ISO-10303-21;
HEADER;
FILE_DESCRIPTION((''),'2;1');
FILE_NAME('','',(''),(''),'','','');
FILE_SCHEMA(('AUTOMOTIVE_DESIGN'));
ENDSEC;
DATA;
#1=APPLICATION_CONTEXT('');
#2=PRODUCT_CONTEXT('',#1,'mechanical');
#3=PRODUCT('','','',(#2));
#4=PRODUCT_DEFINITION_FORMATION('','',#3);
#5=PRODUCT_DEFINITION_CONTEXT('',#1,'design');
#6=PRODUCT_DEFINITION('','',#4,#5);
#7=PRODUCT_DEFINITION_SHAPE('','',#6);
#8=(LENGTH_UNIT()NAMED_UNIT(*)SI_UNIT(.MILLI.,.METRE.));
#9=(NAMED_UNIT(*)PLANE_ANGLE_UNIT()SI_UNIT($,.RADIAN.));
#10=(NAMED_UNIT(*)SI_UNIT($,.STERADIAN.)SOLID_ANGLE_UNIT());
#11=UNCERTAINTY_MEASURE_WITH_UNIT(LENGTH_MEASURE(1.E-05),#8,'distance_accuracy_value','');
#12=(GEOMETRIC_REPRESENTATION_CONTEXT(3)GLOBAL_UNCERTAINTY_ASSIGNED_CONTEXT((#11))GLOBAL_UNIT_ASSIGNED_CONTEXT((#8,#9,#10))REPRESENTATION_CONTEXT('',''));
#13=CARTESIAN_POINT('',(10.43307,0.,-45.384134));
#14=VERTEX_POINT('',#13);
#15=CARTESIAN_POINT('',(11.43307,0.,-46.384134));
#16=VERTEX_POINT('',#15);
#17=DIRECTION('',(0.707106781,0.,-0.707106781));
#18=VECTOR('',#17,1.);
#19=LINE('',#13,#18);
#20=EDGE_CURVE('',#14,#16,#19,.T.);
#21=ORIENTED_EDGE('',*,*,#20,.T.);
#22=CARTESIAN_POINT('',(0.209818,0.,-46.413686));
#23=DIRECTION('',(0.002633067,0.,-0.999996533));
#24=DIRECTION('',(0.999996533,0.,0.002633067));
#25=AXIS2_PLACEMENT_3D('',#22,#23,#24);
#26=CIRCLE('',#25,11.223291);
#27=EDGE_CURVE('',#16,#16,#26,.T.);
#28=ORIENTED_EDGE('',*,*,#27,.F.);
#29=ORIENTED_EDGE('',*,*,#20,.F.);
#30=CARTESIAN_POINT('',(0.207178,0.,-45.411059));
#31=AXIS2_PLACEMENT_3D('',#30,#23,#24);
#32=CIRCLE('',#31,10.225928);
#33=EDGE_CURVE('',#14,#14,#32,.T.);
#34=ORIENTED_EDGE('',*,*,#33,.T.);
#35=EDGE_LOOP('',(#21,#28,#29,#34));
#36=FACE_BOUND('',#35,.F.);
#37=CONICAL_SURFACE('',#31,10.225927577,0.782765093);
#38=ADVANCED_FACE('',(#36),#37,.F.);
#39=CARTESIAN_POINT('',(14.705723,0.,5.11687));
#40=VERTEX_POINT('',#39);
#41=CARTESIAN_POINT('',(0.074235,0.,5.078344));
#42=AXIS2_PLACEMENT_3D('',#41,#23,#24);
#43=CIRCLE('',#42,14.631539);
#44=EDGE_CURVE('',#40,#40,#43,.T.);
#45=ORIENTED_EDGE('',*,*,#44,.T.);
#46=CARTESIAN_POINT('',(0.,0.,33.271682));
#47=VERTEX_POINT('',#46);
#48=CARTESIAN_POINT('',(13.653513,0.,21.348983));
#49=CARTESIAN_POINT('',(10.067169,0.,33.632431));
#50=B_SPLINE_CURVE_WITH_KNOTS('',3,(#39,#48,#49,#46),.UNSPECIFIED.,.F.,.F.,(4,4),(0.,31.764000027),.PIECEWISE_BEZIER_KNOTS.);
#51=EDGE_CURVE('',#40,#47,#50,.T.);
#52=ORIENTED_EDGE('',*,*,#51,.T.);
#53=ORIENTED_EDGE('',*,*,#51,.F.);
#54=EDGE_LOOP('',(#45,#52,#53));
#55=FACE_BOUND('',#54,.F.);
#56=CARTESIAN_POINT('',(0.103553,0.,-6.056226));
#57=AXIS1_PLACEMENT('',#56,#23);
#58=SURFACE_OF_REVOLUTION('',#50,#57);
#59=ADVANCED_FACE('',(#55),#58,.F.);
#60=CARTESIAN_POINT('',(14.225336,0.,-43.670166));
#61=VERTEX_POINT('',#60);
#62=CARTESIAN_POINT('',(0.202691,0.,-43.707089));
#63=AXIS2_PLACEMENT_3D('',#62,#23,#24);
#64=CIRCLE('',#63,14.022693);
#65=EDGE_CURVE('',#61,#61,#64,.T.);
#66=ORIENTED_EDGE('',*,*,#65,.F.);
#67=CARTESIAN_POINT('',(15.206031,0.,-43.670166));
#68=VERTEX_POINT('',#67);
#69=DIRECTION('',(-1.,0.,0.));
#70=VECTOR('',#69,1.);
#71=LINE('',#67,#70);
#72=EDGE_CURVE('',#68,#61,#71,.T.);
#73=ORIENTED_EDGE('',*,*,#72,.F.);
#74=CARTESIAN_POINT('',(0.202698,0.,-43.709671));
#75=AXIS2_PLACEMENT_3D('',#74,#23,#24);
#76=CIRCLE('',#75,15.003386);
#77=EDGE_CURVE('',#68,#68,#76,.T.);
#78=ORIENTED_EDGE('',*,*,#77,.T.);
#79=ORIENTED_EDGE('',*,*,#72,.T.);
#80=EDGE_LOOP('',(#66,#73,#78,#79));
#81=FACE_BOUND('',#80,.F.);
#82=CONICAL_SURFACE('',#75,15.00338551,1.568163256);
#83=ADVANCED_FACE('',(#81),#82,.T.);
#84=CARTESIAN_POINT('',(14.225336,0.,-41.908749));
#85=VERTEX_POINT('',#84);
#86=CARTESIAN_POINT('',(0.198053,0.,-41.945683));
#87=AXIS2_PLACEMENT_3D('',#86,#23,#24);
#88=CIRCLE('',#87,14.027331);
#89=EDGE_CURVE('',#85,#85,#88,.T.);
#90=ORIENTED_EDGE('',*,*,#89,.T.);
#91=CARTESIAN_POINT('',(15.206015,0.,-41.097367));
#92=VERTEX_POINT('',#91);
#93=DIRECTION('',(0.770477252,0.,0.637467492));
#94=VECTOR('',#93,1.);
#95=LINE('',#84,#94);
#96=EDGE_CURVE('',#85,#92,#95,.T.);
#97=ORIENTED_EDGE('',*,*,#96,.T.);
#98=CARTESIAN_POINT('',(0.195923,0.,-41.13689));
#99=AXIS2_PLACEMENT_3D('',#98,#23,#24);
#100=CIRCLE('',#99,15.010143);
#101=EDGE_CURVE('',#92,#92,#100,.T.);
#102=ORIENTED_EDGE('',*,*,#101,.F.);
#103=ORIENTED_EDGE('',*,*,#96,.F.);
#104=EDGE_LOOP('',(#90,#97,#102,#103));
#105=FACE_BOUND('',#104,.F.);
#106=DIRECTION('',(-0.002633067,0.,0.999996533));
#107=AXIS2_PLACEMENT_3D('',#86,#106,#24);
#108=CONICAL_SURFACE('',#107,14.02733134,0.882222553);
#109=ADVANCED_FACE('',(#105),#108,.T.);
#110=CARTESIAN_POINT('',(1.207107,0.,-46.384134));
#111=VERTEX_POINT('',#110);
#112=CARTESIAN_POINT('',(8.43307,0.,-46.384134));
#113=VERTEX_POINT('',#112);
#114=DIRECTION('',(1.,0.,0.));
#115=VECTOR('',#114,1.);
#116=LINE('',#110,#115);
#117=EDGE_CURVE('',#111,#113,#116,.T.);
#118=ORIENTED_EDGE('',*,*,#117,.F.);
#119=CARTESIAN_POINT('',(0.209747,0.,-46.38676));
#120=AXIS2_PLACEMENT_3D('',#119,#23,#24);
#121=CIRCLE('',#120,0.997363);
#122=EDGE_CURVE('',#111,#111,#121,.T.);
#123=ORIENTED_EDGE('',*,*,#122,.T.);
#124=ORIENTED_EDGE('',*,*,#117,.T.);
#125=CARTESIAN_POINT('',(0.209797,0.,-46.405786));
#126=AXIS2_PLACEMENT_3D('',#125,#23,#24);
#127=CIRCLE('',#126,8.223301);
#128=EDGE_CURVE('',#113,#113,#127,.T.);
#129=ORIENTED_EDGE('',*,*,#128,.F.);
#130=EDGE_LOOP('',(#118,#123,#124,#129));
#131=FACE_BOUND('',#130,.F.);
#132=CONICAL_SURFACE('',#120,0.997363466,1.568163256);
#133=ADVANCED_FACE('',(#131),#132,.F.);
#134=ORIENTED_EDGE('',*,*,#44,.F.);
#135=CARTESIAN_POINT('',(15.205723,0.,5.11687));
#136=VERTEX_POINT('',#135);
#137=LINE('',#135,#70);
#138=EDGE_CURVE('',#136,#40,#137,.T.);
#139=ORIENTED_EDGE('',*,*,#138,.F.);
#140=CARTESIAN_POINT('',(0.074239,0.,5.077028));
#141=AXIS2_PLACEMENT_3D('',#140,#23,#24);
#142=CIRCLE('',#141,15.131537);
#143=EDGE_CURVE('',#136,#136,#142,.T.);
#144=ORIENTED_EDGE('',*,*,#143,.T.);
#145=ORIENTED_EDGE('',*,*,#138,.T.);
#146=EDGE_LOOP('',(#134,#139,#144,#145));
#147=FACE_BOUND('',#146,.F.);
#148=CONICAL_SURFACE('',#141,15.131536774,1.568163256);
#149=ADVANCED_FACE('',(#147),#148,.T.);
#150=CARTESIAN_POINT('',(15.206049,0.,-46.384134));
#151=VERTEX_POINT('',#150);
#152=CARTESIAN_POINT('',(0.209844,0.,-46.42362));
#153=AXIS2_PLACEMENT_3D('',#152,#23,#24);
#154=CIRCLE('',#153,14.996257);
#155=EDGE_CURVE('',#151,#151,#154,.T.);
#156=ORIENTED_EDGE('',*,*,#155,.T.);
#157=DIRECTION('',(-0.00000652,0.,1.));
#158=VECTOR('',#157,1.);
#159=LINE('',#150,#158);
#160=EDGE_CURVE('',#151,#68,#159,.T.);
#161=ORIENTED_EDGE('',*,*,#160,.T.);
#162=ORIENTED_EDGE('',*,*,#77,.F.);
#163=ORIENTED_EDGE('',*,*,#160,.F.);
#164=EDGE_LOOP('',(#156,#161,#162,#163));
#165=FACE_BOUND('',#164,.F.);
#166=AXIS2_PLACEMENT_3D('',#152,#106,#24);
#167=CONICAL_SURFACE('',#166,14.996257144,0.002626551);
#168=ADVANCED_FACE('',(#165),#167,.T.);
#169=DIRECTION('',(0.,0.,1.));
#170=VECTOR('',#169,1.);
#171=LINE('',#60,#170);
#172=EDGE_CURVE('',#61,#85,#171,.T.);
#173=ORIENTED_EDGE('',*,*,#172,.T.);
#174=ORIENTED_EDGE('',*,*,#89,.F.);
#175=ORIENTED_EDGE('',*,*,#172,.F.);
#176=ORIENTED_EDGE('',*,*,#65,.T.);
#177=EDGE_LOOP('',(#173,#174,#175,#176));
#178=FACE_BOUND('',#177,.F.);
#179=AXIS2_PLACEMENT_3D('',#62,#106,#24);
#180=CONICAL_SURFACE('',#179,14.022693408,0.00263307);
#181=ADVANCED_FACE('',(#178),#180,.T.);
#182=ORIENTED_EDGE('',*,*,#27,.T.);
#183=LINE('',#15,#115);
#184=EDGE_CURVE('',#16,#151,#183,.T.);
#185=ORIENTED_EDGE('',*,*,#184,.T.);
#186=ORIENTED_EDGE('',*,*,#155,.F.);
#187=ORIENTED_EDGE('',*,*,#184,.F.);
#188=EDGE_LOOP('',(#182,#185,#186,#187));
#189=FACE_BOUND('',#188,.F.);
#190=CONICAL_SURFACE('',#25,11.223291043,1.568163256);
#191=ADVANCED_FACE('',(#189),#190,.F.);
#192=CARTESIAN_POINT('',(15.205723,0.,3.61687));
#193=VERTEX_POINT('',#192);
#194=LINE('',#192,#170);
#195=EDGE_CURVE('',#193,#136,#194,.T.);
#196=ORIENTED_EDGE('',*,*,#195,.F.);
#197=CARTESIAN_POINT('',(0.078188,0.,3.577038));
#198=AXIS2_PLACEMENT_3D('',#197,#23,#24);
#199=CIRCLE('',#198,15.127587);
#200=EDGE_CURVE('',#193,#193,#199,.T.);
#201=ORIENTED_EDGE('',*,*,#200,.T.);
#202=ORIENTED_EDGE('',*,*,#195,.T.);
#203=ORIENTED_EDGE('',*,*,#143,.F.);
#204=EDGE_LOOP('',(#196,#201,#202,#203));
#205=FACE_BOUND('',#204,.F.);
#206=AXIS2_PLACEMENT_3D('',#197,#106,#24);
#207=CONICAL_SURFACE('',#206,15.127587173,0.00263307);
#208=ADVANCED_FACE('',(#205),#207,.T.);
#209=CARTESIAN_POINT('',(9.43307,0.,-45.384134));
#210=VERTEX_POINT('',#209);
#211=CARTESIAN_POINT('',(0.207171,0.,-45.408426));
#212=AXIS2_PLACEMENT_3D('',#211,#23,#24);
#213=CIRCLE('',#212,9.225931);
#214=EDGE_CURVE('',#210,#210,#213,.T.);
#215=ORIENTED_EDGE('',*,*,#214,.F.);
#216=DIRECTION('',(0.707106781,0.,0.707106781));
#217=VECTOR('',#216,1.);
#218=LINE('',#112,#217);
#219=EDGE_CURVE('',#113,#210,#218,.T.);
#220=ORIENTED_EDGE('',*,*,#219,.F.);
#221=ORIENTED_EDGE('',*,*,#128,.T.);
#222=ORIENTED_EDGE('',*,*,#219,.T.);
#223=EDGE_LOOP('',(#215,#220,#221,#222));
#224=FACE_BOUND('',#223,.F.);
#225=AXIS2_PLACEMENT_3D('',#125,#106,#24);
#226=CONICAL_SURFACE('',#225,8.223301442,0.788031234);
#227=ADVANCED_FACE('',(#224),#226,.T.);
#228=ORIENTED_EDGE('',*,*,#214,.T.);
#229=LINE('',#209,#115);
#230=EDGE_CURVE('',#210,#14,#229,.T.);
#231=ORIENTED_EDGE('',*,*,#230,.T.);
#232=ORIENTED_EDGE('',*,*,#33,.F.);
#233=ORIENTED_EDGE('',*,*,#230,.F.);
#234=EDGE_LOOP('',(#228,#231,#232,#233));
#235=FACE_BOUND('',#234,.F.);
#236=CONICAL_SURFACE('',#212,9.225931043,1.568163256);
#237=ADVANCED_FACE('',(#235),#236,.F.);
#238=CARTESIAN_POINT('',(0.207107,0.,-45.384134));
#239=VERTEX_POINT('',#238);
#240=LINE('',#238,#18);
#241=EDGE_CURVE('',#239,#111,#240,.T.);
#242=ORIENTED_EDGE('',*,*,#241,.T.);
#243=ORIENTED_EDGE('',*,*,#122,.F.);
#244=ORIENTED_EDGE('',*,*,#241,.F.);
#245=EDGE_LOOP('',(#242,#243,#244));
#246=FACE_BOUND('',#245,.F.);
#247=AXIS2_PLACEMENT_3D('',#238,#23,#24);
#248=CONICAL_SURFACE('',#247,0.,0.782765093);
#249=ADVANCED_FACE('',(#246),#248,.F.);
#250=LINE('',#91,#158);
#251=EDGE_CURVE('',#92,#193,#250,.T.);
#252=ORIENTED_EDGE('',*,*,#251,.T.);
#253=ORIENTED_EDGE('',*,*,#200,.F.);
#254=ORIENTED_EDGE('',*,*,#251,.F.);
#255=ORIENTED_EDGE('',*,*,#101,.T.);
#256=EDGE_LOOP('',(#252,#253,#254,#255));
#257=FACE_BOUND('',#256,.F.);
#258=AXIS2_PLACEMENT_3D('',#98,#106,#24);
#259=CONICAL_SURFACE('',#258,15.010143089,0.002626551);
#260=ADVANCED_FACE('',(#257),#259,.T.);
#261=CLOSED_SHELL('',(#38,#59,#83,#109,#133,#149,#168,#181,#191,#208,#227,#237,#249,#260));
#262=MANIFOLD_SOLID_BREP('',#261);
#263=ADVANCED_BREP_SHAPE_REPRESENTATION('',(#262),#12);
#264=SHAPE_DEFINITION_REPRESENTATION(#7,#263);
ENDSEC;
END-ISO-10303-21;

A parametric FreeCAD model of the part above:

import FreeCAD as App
import Part
import Sketcher
from FreeCAD import Vector
Q = App.Units.Quantity

doc = App.newDocument("Part")
body = doc.addObject("PartDesign::Body", "Body")

# Sketch on XZ plane
sketch1 = doc.addObject("Sketcher::SketchObject", "Sketch")
body.addObject(sketch1)
sketch1.AttachmentSupport = (doc.XZ_Plane, [""])
sketch1.MapMode = "FlatFace"
sketch1.addGeometry(Part.LineSegment(Vector(15.206049, -46.384134, 0), Vector(15.206031, -43.670166, 0)), False)
sketch1.addGeometry(Part.LineSegment(Vector(15.206031, -43.670166, 0), Vector(14.225336, -43.670166, 0)), False)
sketch1.addGeometry(Part.LineSegment(Vector(14.225336, -43.670166, 0), Vector(14.225336, -41.908749, 0)), False)
sketch1.addGeometry(Part.LineSegment(Vector(14.225336, -41.908749, 0), Vector(15.206015, -41.097367, 0)), False)
sketch1.addGeometry(Part.LineSegment(Vector(15.206015, -41.097367, 0), Vector(15.205723, 3.61687, 0)), False)
sketch1.addGeometry(Part.LineSegment(Vector(15.205723, 3.61687, 0), Vector(15.205723, 5.11687, 0)), False)
sketch1.addGeometry(Part.LineSegment(Vector(15.205723, 5.11687, 0), Vector(14.705723, 5.11687, 0)), False)
sketch1.addGeometry(Part.BSplineCurve([Vector(14.705723, 5.11687, 0), Vector(13.653513, 21.348983, 0), Vector(10.067169, 33.632431, 0), Vector(0, 33.271682, 0)], [4, 4], [0, 31.764000027], False, 3, [1, 1, 1, 1], False), False)
sketch1.addGeometry(Part.LineSegment(Vector(0, 33.271682, 0), Vector(0.207107, -45.384134, 0)), False)
sketch1.addGeometry(Part.LineSegment(Vector(0.207107, -45.384134, 0), Vector(1.207107, -46.384134, 0)), False)
sketch1.addGeometry(Part.LineSegment(Vector(1.207107, -46.384134, 0), Vector(8.43307, -46.384134, 0)), False)
sketch1.addGeometry(Part.LineSegment(Vector(8.43307, -46.384134, 0), Vector(9.43307, -45.384134, 0)), False)
sketch1.addGeometry(Part.LineSegment(Vector(9.43307, -45.384134, 0), Vector(10.43307, -45.384134, 0)), False)
sketch1.addGeometry(Part.LineSegment(Vector(10.43307, -45.384134, 0), Vector(11.43307, -46.384134, 0)), False)
sketch1.addGeometry(Part.LineSegment(Vector(11.43307, -46.384134, 0), Vector(15.206049, -46.384134, 0)), False)
sketch1.addGeometry(Part.LineSegment(Vector(0, 33.271681, 0), Vector(0.209844, -46.42362, 0)), True)  # axis
sketch1.addConstraint(Sketcher.Constraint("Block", 7))
sketch1.addConstraint(Sketcher.Constraint("Coincident", 0, 2, 1, 1))
sketch1.addConstraint(Sketcher.Constraint("Coincident", 1, 2, 2, 1))
sketch1.addConstraint(Sketcher.Constraint("Coincident", 2, 2, 3, 1))
sketch1.addConstraint(Sketcher.Constraint("Coincident", 3, 2, 4, 1))
sketch1.addConstraint(Sketcher.Constraint("Coincident", 4, 2, 5, 1))
sketch1.addConstraint(Sketcher.Constraint("Coincident", 5, 2, 6, 1))
sketch1.addConstraint(Sketcher.Constraint("Coincident", 6, 2, 7, 1))
sketch1.addConstraint(Sketcher.Constraint("Coincident", 7, 2, 8, 1))
sketch1.addConstraint(Sketcher.Constraint("Coincident", 8, 2, 9, 1))
sketch1.addConstraint(Sketcher.Constraint("Coincident", 9, 2, 10, 1))
sketch1.addConstraint(Sketcher.Constraint("Coincident", 10, 2, 11, 1))
sketch1.addConstraint(Sketcher.Constraint("Coincident", 11, 2, 12, 1))
sketch1.addConstraint(Sketcher.Constraint("Coincident", 12, 2, 13, 1))
sketch1.addConstraint(Sketcher.Constraint("Coincident", 13, 2, 14, 1))
sketch1.addConstraint(Sketcher.Constraint("Coincident", 14, 2, 0, 1))
sketch1.addConstraint(Sketcher.Constraint("Horizontal", 1))
sketch1.addConstraint(Sketcher.Constraint("Vertical", 2))
sketch1.addConstraint(Sketcher.Constraint("Vertical", 5))
sketch1.addConstraint(Sketcher.Constraint("Horizontal", 6))
sketch1.addConstraint(Sketcher.Constraint("Horizontal", 10))
sketch1.addConstraint(Sketcher.Constraint("Horizontal", 12))
sketch1.addConstraint(Sketcher.Constraint("Horizontal", 14))
sketch1.addConstraint(Sketcher.Constraint("PointOnObject", 15, 1, -2))
sketch1.addConstraint(Sketcher.Constraint("DistanceX", 12, 1, 12, 2, Q("1 mm")))
sketch1.addConstraint(Sketcher.Constraint("DistanceX", 6, 2, 6, 1, Q("0.5 mm")))
sketch1.addConstraint(Sketcher.Constraint("DistanceY", 5, 1, 5, 2, Q("1.5 mm")))
sketch1.addConstraint(Sketcher.Constraint("DistanceX", 8, 2, 9, 2, Q("1 mm")))
sketch1.addConstraint(Sketcher.Constraint("DistanceY", 9, 2, 8, 2, Q("1 mm")))
sketch1.addConstraint(Sketcher.Constraint("DistanceX", 10, 2, 11, 2, Q("1 mm")))
sketch1.addConstraint(Sketcher.Constraint("DistanceY", 10, 2, 11, 2, Q("1 mm")))
sketch1.addConstraint(Sketcher.Constraint("DistanceX", 12, 2, 13, 2, Q("1 mm")))
sketch1.addConstraint(Sketcher.Constraint("DistanceY", 13, 2, 12, 2, Q("1 mm")))
sketch1.addConstraint(Sketcher.Constraint("DistanceX", 14, 1, 14, 2, Q("3.772979 mm")))
sketch1.addConstraint(Sketcher.Constraint("DistanceY", 0, 2, 3, 2, Q("2.572799 mm")))
sketch1.addConstraint(Sketcher.Constraint("Distance", 3, Q("1.27282 mm")))
sketch1.addConstraint(Sketcher.Constraint("Distance", 8, Q("78.656088 mm")))
sketch1.addConstraint(Sketcher.Constraint("DistanceX", 1, 2, 1, 1, Q("0.980696 mm")))
sketch1.addConstraint(Sketcher.Constraint("DistanceX", 10, 1, 10, 2, Q("7.225963 mm")))
sketch1.addConstraint(Sketcher.Constraint("DistanceY", 2, 1, 2, 2, Q("1.761418 mm")))
sketch1.addConstraint(Sketcher.Constraint("DistanceX", -1, 1, 0, 2, Q("15.206031 mm")))
sketch1.addConstraint(Sketcher.Constraint("DistanceY", 2, 2, -1, 1, Q("41.908749 mm")))
sketch1.addConstraint(Sketcher.Constraint("DistanceX", -1, 1, 10, 2, Q("8.43307 mm")))
sketch1.addConstraint(Sketcher.Constraint("DistanceY", -1, 1, 15, 1, Q("33.271681 mm")))
sketch1.addConstraint(Sketcher.Constraint("DistanceY", 15, 2, -1, 1, Q("46.42362 mm")))
sketch1.addConstraint(Sketcher.Constraint("DistanceX", -1, 1, 15, 2, Q("0.209844 mm")))
revolution = doc.addObject("PartDesign::Revolution", "Revolution")
body.addObject(revolution)
revolution.Profile = sketch1
revolution.ReferenceAxis = (sketch1, ["Axis0"])
revolution.Angle = 360

doc.recompute()
